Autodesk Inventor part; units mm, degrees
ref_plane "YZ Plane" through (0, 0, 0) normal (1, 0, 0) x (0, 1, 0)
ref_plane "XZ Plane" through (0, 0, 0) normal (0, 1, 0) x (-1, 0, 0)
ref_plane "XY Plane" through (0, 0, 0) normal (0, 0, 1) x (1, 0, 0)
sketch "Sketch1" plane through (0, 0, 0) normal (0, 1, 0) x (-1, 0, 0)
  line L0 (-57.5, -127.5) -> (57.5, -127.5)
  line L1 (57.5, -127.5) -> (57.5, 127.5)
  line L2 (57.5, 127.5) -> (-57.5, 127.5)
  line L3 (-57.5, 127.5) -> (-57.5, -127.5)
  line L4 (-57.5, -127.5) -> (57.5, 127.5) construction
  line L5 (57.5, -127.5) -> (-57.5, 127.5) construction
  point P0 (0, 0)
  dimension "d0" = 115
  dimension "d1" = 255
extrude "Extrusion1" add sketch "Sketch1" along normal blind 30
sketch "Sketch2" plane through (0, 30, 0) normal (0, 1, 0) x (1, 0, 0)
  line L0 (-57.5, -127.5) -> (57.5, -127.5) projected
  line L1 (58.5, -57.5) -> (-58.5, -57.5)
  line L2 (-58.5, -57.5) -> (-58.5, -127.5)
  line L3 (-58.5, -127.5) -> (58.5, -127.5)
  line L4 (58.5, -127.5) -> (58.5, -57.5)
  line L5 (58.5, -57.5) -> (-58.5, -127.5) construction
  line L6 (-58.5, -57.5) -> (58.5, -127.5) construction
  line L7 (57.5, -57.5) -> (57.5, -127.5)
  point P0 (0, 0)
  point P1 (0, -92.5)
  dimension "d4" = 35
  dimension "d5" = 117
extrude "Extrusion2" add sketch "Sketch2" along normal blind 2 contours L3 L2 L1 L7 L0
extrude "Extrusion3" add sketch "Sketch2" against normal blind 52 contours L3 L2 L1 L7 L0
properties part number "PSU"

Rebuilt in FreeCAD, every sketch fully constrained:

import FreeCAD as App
import Part
import Sketcher
from FreeCAD import Vector
Q = App.Units.Quantity

doc = App.newDocument("Part")
params = doc.addObject("Spreadsheet::Sheet", "Params")
for row, (alias, value) in enumerate([
    ("sketch1_width", "115 mm"),
    ("sketch1_height", "255 mm"),
    ("pad1_length", "30 mm"),
    ("sketch2_width", "116 mm"),
    ("sketch2_height", "70 mm"),
    ("pad2_length", "2 mm"),
    ("sketch3_width", "116 mm"),
    ("sketch3_height", "70 mm"),
    ("pad3_length", "52 mm"),
], start=1):
    params.set(f"A{row}", alias)
    params.set(f"B{row}", "=" + value)
    params.setAlias(f"B{row}", alias)

body = doc.addObject("PartDesign::Body", "Body")

# Sketch on XZ plane
sketch1 = body.newObject("Sketcher::SketchObject", "Sketch")
sketch1.AttachmentSupport = (doc.getObject("XZ_Plane"), [""])
sketch1.MapMode = "FlatFace"
sketch1.addGeometry([
    Part.LineSegment(Vector(58, 128, 0), Vector(58, -128, 0)),
    Part.LineSegment(Vector(58, -128, 0), Vector(-58, -128, 0)),
    Part.LineSegment(Vector(-58, -128, 0), Vector(-58, 128, 0)),
    Part.LineSegment(Vector(-58, 128, 0), Vector(58, 128, 0)),
], False)
sketch1.addConstraint([
    Sketcher.Constraint("Coincident", 0, 2, 1, 1),
    Sketcher.Constraint("Coincident", 1, 2, 2, 1),
    Sketcher.Constraint("Coincident", 2, 2, 3, 1),
    Sketcher.Constraint("Coincident", 3, 2, 0, 1),
    Sketcher.Constraint("Vertical", 0),
    Sketcher.Constraint("Horizontal", 1),
    Sketcher.Constraint("Vertical", 2),
    Sketcher.Constraint("Horizontal", 3),
    Sketcher.Constraint("Symmetric", 0, 2, 2, 2, -1, 1),
    Sketcher.Constraint("DistanceX", 1, 2, 1, 1, Q("115 mm")),
    Sketcher.Constraint("DistanceY", 0, 2, 0, 1, Q("255 mm")),
])
sketch1.setExpression("Constraints[9]", "Params.sketch1_width")
sketch1.setExpression("Constraints[10]", "Params.sketch1_height")
pad1 = body.newObject("PartDesign::Pad", "Pad")
pad1.Profile = sketch1
pad1.setExpression("Length", "Params.pad1_length")
pad1.Reversed = True

# Sketch on XZ plane
sketch2 = body.newObject("Sketcher::SketchObject", "Sketch001")
sketch2.AttachmentSupport = (doc.getObject("XZ_Plane"), [""])
sketch2.MapMode = "FlatFace"
sketch2.AttachmentOffset = App.Placement(Vector(0, 0, -30), App.Rotation())
sketch2.addGeometry([
    Part.LineSegment(Vector(-58, 128, 0), Vector(58, 128, 0)),
    Part.LineSegment(Vector(58, 128, 0), Vector(58, 58, 0)),
    Part.LineSegment(Vector(58, 58, 0), Vector(-58, 58, 0)),
    Part.LineSegment(Vector(-58, 58, 0), Vector(-58, 128, 0)),
], False)
sketch2.addConstraint([
    Sketcher.Constraint("Coincident", 0, 2, 1, 1),
    Sketcher.Constraint("Coincident", 1, 2, 2, 1),
    Sketcher.Constraint("Coincident", 2, 2, 3, 1),
    Sketcher.Constraint("Coincident", 3, 2, 0, 1),
    Sketcher.Constraint("Horizontal", 0),
    Sketcher.Constraint("Vertical", 1),
    Sketcher.Constraint("Horizontal", 2),
    Sketcher.Constraint("Vertical", 3),
    Sketcher.Constraint("DistanceX", 0, 1, 0, 2, Q("116 mm")),
    Sketcher.Constraint("DistanceY", 1, 2, 1, 1, Q("70 mm")),
    Sketcher.Constraint("DistanceX", -1, 1, 0, 2, Q("57.5 mm")),
    Sketcher.Constraint("DistanceY", -1, 1, 0, 2, Q("127.5 mm")),
])
sketch2.setExpression("Constraints[8]", "Params.sketch2_width")
sketch2.setExpression("Constraints[9]", "Params.sketch2_height")
pad2 = body.newObject("PartDesign::Pad", "Pad001")
pad2.Profile = sketch2
pad2.setExpression("Length", "Params.pad2_length")
pad2.Reversed = True

# Sketch on XZ plane
sketch3 = body.newObject("Sketcher::SketchObject", "Sketch002")
sketch3.AttachmentSupport = (doc.getObject("XZ_Plane"), [""])
sketch3.MapMode = "FlatFace"
sketch3.AttachmentOffset = App.Placement(Vector(0, 0, -30), App.Rotation())
sketch3.addGeometry([
    Part.LineSegment(Vector(-58, 128, 0), Vector(58, 128, 0)),
    Part.LineSegment(Vector(58, 128, 0), Vector(58, 58, 0)),
    Part.LineSegment(Vector(58, 58, 0), Vector(-58, 58, 0)),
    Part.LineSegment(Vector(-58, 58, 0), Vector(-58, 128, 0)),
], False)
sketch3.addConstraint([
    Sketcher.Constraint("Coincident", 0, 2, 1, 1),
    Sketcher.Constraint("Coincident", 1, 2, 2, 1),
    Sketcher.Constraint("Coincident", 2, 2, 3, 1),
    Sketcher.Constraint("Coincident", 3, 2, 0, 1),
    Sketcher.Constraint("Horizontal", 0),
    Sketcher.Constraint("Vertical", 1),
    Sketcher.Constraint("Horizontal", 2),
    Sketcher.Constraint("Vertical", 3),
    Sketcher.Constraint("DistanceX", 0, 1, 0, 2, Q("116 mm")),
    Sketcher.Constraint("DistanceY", 1, 2, 1, 1, Q("70 mm")),
    Sketcher.Constraint("DistanceX", -1, 1, 0, 2, Q("57.5 mm")),
    Sketcher.Constraint("DistanceY", -1, 1, 0, 2, Q("127.5 mm")),
])
sketch3.setExpression("Constraints[8]", "Params.sketch3_width")
sketch3.setExpression("Constraints[9]", "Params.sketch3_height")
pad3 = body.newObject("PartDesign::Pad", "Pad002")
pad3.Profile = sketch3
pad3.setExpression("Length", "Params.pad3_length")

doc.recompute()
